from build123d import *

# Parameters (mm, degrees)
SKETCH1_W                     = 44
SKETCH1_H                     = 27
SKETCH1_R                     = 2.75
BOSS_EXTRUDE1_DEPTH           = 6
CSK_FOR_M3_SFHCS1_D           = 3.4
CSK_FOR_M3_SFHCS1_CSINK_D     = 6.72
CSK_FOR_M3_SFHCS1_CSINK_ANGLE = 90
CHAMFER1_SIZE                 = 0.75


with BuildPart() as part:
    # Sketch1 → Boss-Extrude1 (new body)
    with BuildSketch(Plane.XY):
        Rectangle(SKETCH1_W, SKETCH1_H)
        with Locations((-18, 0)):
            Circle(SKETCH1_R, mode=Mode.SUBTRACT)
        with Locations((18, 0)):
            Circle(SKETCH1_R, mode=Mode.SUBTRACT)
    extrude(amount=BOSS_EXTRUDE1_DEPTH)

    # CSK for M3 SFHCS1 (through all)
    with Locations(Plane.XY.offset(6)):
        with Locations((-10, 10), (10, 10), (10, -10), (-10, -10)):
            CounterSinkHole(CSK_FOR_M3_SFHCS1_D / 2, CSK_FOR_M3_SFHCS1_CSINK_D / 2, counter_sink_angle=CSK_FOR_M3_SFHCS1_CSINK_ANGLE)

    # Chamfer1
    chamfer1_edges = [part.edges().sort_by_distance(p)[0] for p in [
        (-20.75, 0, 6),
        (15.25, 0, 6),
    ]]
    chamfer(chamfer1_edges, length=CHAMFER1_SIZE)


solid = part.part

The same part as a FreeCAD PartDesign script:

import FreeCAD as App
import Part
import Sketcher
from FreeCAD import Vector
Q = App.Units.Quantity


def edges_at(feature, points):
    """Names of the edges that pass closest to the given points."""
    edges = feature.Shape.Edges
    near = lambda p: min(range(len(edges)), key=lambda i: edges[i].distToShape(Part.Vertex(*p))[0])
    return sorted({f"Edge{near(p) + 1}" for p in points})


def add_polygon(sketch, points):
    """Adds a closed chain of lines whose ends are joined by coincident constraints."""
    first, n = sketch.GeometryCount, len(points)
    for a, b in zip(points, points[1:] + points[:1]):
        sketch.addGeometry(Part.LineSegment(App.Vector(*a, 0), App.Vector(*b, 0)), False)
    for i in range(n):
        sketch.addConstraint(Sketcher.Constraint("Coincident", first + i, 2, first + (i + 1) % n, 1))

doc = App.newDocument("Part")
body = doc.addObject("PartDesign::Body", "Body")

# Sketch on XY plane
sketch1 = body.newObject("Sketcher::SketchObject", "Sketch")
sketch1.AttachmentSupport = (doc.getObject("XY_Plane"), [""])
sketch1.MapMode = "FlatFace"
add_polygon(sketch1, [(-22, 13.5), (-22, -13.5), (22, -13.5), (22, 13.5)])  # lines 0-3
sketch1.addGeometry(Part.Circle(Vector(-18, 0, 0), Vector(0, 0, 1), 2.8), False)  # 4
sketch1.addGeometry(Part.Circle(Vector(18, 0, 0), Vector(0, 0, 1), 2.8), False)  # 5
sketch1.addConstraint(Sketcher.Constraint("Vertical", 0))
sketch1.addConstraint(Sketcher.Constraint("Horizontal", 1))
sketch1.addConstraint(Sketcher.Constraint("Vertical", 2))
sketch1.addConstraint(Sketcher.Constraint("Horizontal", 3))
sketch1.addConstraint(Sketcher.Constraint("Equal", 4, 5))
sketch1.addConstraint(Sketcher.Constraint("Symmetric", 4, 3, 5, 3, -1, 1))
sketch1.addConstraint(Sketcher.Constraint("Symmetric", 0, 2, 2, 2, -1, 1))
sketch1.addConstraint(Sketcher.Constraint("PointOnObject", 4, 3, -1))
sketch1.addConstraint(Sketcher.Constraint("Diameter", 4, Q("5.5 mm")))
sketch1.addConstraint(Sketcher.Constraint("DistanceX", 1, 1, 1, 2, Q("44 mm")))
sketch1.addConstraint(Sketcher.Constraint("DistanceY", 0, 2, 0, 1, Q("27 mm")))
sketch1.addConstraint(Sketcher.Constraint("DistanceX", 4, 3, -1, 1, Q("18 mm")))
pad1 = body.newObject("PartDesign::Pad", "Pad")
pad1.Profile = sketch1
pad1.Length = 6

# Sketch on XY plane
sketch2 = body.newObject("Sketcher::SketchObject", "Sketch001")
sketch2.AttachmentSupport = (doc.getObject("XY_Plane"), [""])
sketch2.MapMode = "FlatFace"
sketch2.AttachmentOffset = App.Placement(Vector(0, 0, 6), App.Rotation())
sketch2.addGeometry(Part.Circle(Vector(-10, 10, 0), Vector(0, 0, 1), 1.7), False)
sketch2.addGeometry(Part.Circle(Vector(10, 10, 0), Vector(0, 0, 1), 1.7), False)
sketch2.addGeometry(Part.Circle(Vector(10, -10, 0), Vector(0, 0, 1), 1.7), False)
sketch2.addGeometry(Part.Circle(Vector(-10, -10, 0), Vector(0, 0, 1), 1.7), False)
sketch2.addConstraint(Sketcher.Constraint("Equal", 0, 1))
sketch2.addConstraint(Sketcher.Constraint("Equal", 1, 2))
sketch2.addConstraint(Sketcher.Constraint("Equal", 2, 3))
sketch2.addConstraint(Sketcher.Constraint("Symmetric", 0, 3, 2, 3, -1, 1))
sketch2.addConstraint(Sketcher.Constraint("Symmetric", 1, 3, 3, 3, -1, 1))
sketch2.addConstraint(Sketcher.Constraint("Symmetric", 0, 3, 1, 3, -2))
sketch2.addConstraint(Sketcher.Constraint("Diameter", 0, Q("3.4 mm")))
sketch2.addConstraint(Sketcher.Constraint("DistanceX", 0, 3, -1, 1, Q("10 mm")))
sketch2.addConstraint(Sketcher.Constraint("DistanceY", -1, 1, 0, 3, Q("10 mm")))
doc.recompute()
hole = body.newObject("PartDesign::Hole", "Hole")
hole.Profile = sketch2
hole.ThreadType = "None"
hole.Diameter = 3.4
hole.DepthType = "ThroughAll"
hole.HoleCutType = "Countersink"
hole.HoleCutDiameter = 6.72
hole.HoleCutCountersinkAngle = 90
doc.recompute()

chamfer = body.newObject("PartDesign::Chamfer", "Chamfer")
chamfer.Base = (hole, edges_at(hole, [(-20.75, 0, 6), (15.25, 0, 6)]))
chamfer.Size = 0.75

doc.recompute()
